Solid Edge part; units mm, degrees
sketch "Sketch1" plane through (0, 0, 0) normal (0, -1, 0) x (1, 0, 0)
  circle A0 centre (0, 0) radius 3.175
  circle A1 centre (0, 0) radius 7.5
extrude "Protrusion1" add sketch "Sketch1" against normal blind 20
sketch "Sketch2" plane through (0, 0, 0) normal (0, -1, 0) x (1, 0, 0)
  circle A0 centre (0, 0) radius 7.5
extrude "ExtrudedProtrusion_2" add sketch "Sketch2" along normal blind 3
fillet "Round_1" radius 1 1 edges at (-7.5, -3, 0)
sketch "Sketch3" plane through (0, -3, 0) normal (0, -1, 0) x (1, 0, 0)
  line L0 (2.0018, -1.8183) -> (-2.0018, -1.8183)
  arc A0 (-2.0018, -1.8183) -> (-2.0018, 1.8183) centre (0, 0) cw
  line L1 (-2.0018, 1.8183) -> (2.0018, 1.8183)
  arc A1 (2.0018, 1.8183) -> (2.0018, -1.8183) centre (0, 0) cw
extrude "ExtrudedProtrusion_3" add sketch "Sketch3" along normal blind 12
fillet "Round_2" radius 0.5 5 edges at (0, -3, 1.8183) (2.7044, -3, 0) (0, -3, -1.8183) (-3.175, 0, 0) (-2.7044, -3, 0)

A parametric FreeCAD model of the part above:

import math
import FreeCAD as App
import Part
import Sketcher


def edges_at(feature, points):
    """Names of the edges that pass closest to the given points."""
    edges = feature.Shape.Edges
    near = lambda p: min(range(len(edges)), key=lambda i: edges[i].distToShape(Part.Vertex(*p))[0])
    return sorted({f"Edge{near(p) + 1}" for p in points})

doc = App.newDocument("Part")
body = doc.addObject("PartDesign::Body", "Body")

# Sketch on XZ plane
sketch1 = body.newObject("Sketcher::SketchObject", "Sketch")
sketch1.AttachmentSupport = (doc.getObject("XZ_Plane"), [""])
sketch1.MapMode = "FlatFace"
sketch1.addGeometry(Part.Circle(App.Vector(0, 0, 0), App.Vector(0, 0, 1), 7.5), False)
sketch1.addGeometry(Part.Circle(App.Vector(0, 0, 0), App.Vector(0, 0, 1), 3.175), False)
sketch1.addConstraint(Sketcher.Constraint("Coincident", 0, 3, -1, 1))
sketch1.addConstraint(Sketcher.Constraint("Coincident", 1, 3, -1, 1))
sketch1.addConstraint(Sketcher.Constraint("Diameter", 0, 15.0))
sketch1.addConstraint(Sketcher.Constraint("Diameter", 1, 6.35))
pad1 = body.newObject("PartDesign::Pad", "Pad")
pad1.Profile = sketch1
pad1.Length = 20
pad1.Reversed = True

# Sketch on XZ plane
sketch2 = body.newObject("Sketcher::SketchObject", "Sketch001")
sketch2.AttachmentSupport = (doc.getObject("XZ_Plane"), [""])
sketch2.MapMode = "FlatFace"
sketch2.addGeometry(Part.Circle(App.Vector(0, 0, 0), App.Vector(0, 0, 1), 7.5), False)
sketch2.addConstraint(Sketcher.Constraint("Coincident", 0, 3, -1, 1))
sketch2.addConstraint(Sketcher.Constraint("Diameter", 0, 15.0))
pad2 = body.newObject("PartDesign::Pad", "Pad001")
pad2.Profile = sketch2
pad2.Length = 3
doc.recompute()

fillet = body.newObject("PartDesign::Fillet", "Fillet")
fillet.Base = (pad2, edges_at(pad2, [(-7.5, -3, 0)]))
fillet.Radius = 1

# Sketch on XZ plane
sketch3 = body.newObject("Sketcher::SketchObject", "Sketch002")
sketch3.AttachmentSupport = (doc.getObject("XZ_Plane"), [""])
sketch3.MapMode = "FlatFace"
sketch3.AttachmentOffset = App.Placement(App.Vector(0, 0, 3), App.Rotation())
sketch3.addGeometry(Part.LineSegment(App.Vector(-2.0018, -1.8183, 0), App.Vector(2.0018, -1.8183, 0)), False)
sketch3.addGeometry(Part.ArcOfCircle(Part.Circle(App.Vector(0, 0, 0), App.Vector(0, 0, 1), 2.704333), math.radians(-42.249889), math.radians(42.249889)), False)
sketch3.addGeometry(Part.LineSegment(App.Vector(2.0018, 1.8183, 0), App.Vector(-2.0018, 1.8183, 0)), False)
sketch3.addGeometry(Part.ArcOfCircle(Part.Circle(App.Vector(0, 0, 0), App.Vector(0, 0, 1), 2.704333), math.radians(137.750111), math.radians(222.249889)), False)
sketch3.addConstraint(Sketcher.Constraint("Coincident", 0, 2, 1, 1))
sketch3.addConstraint(Sketcher.Constraint("Coincident", 1, 2, 2, 1))
sketch3.addConstraint(Sketcher.Constraint("Coincident", 2, 2, 3, 1))
sketch3.addConstraint(Sketcher.Constraint("Coincident", 3, 2, 0, 1))
sketch3.addConstraint(Sketcher.Constraint("Horizontal", 0))
sketch3.addConstraint(Sketcher.Constraint("Horizontal", 2))
sketch3.addConstraint(Sketcher.Constraint("Coincident", 1, 3, -1, 1))
sketch3.addConstraint(Sketcher.Constraint("Coincident", 3, 3, -1, 1))
sketch3.addConstraint(Sketcher.Constraint("Equal", 1, 3))
sketch3.addConstraint(Sketcher.Constraint("Vertical", 0, 2, 1, 2))
sketch3.addConstraint(Sketcher.Constraint("Radius", 1, 2.7043))
sketch3.addConstraint(Sketcher.Constraint("DistanceX", 0, 1, 0, 2, 4.0036))
pad3 = body.newObject("PartDesign::Pad", "Pad002")
pad3.Profile = sketch3
pad3.Length = 12
doc.recompute()

fillet2 = body.newObject("PartDesign::Fillet", "Fillet001")
fillet2.Base = (pad3, edges_at(pad3, [
    (0, -3, 1.818),
    (2.704, -3, 0),
    (0, -3, -1.818),
    (-3.175, 0, 0),
    (-2.704, -3, 0),
]))
fillet2.Radius = 0.5

doc.recompute()
